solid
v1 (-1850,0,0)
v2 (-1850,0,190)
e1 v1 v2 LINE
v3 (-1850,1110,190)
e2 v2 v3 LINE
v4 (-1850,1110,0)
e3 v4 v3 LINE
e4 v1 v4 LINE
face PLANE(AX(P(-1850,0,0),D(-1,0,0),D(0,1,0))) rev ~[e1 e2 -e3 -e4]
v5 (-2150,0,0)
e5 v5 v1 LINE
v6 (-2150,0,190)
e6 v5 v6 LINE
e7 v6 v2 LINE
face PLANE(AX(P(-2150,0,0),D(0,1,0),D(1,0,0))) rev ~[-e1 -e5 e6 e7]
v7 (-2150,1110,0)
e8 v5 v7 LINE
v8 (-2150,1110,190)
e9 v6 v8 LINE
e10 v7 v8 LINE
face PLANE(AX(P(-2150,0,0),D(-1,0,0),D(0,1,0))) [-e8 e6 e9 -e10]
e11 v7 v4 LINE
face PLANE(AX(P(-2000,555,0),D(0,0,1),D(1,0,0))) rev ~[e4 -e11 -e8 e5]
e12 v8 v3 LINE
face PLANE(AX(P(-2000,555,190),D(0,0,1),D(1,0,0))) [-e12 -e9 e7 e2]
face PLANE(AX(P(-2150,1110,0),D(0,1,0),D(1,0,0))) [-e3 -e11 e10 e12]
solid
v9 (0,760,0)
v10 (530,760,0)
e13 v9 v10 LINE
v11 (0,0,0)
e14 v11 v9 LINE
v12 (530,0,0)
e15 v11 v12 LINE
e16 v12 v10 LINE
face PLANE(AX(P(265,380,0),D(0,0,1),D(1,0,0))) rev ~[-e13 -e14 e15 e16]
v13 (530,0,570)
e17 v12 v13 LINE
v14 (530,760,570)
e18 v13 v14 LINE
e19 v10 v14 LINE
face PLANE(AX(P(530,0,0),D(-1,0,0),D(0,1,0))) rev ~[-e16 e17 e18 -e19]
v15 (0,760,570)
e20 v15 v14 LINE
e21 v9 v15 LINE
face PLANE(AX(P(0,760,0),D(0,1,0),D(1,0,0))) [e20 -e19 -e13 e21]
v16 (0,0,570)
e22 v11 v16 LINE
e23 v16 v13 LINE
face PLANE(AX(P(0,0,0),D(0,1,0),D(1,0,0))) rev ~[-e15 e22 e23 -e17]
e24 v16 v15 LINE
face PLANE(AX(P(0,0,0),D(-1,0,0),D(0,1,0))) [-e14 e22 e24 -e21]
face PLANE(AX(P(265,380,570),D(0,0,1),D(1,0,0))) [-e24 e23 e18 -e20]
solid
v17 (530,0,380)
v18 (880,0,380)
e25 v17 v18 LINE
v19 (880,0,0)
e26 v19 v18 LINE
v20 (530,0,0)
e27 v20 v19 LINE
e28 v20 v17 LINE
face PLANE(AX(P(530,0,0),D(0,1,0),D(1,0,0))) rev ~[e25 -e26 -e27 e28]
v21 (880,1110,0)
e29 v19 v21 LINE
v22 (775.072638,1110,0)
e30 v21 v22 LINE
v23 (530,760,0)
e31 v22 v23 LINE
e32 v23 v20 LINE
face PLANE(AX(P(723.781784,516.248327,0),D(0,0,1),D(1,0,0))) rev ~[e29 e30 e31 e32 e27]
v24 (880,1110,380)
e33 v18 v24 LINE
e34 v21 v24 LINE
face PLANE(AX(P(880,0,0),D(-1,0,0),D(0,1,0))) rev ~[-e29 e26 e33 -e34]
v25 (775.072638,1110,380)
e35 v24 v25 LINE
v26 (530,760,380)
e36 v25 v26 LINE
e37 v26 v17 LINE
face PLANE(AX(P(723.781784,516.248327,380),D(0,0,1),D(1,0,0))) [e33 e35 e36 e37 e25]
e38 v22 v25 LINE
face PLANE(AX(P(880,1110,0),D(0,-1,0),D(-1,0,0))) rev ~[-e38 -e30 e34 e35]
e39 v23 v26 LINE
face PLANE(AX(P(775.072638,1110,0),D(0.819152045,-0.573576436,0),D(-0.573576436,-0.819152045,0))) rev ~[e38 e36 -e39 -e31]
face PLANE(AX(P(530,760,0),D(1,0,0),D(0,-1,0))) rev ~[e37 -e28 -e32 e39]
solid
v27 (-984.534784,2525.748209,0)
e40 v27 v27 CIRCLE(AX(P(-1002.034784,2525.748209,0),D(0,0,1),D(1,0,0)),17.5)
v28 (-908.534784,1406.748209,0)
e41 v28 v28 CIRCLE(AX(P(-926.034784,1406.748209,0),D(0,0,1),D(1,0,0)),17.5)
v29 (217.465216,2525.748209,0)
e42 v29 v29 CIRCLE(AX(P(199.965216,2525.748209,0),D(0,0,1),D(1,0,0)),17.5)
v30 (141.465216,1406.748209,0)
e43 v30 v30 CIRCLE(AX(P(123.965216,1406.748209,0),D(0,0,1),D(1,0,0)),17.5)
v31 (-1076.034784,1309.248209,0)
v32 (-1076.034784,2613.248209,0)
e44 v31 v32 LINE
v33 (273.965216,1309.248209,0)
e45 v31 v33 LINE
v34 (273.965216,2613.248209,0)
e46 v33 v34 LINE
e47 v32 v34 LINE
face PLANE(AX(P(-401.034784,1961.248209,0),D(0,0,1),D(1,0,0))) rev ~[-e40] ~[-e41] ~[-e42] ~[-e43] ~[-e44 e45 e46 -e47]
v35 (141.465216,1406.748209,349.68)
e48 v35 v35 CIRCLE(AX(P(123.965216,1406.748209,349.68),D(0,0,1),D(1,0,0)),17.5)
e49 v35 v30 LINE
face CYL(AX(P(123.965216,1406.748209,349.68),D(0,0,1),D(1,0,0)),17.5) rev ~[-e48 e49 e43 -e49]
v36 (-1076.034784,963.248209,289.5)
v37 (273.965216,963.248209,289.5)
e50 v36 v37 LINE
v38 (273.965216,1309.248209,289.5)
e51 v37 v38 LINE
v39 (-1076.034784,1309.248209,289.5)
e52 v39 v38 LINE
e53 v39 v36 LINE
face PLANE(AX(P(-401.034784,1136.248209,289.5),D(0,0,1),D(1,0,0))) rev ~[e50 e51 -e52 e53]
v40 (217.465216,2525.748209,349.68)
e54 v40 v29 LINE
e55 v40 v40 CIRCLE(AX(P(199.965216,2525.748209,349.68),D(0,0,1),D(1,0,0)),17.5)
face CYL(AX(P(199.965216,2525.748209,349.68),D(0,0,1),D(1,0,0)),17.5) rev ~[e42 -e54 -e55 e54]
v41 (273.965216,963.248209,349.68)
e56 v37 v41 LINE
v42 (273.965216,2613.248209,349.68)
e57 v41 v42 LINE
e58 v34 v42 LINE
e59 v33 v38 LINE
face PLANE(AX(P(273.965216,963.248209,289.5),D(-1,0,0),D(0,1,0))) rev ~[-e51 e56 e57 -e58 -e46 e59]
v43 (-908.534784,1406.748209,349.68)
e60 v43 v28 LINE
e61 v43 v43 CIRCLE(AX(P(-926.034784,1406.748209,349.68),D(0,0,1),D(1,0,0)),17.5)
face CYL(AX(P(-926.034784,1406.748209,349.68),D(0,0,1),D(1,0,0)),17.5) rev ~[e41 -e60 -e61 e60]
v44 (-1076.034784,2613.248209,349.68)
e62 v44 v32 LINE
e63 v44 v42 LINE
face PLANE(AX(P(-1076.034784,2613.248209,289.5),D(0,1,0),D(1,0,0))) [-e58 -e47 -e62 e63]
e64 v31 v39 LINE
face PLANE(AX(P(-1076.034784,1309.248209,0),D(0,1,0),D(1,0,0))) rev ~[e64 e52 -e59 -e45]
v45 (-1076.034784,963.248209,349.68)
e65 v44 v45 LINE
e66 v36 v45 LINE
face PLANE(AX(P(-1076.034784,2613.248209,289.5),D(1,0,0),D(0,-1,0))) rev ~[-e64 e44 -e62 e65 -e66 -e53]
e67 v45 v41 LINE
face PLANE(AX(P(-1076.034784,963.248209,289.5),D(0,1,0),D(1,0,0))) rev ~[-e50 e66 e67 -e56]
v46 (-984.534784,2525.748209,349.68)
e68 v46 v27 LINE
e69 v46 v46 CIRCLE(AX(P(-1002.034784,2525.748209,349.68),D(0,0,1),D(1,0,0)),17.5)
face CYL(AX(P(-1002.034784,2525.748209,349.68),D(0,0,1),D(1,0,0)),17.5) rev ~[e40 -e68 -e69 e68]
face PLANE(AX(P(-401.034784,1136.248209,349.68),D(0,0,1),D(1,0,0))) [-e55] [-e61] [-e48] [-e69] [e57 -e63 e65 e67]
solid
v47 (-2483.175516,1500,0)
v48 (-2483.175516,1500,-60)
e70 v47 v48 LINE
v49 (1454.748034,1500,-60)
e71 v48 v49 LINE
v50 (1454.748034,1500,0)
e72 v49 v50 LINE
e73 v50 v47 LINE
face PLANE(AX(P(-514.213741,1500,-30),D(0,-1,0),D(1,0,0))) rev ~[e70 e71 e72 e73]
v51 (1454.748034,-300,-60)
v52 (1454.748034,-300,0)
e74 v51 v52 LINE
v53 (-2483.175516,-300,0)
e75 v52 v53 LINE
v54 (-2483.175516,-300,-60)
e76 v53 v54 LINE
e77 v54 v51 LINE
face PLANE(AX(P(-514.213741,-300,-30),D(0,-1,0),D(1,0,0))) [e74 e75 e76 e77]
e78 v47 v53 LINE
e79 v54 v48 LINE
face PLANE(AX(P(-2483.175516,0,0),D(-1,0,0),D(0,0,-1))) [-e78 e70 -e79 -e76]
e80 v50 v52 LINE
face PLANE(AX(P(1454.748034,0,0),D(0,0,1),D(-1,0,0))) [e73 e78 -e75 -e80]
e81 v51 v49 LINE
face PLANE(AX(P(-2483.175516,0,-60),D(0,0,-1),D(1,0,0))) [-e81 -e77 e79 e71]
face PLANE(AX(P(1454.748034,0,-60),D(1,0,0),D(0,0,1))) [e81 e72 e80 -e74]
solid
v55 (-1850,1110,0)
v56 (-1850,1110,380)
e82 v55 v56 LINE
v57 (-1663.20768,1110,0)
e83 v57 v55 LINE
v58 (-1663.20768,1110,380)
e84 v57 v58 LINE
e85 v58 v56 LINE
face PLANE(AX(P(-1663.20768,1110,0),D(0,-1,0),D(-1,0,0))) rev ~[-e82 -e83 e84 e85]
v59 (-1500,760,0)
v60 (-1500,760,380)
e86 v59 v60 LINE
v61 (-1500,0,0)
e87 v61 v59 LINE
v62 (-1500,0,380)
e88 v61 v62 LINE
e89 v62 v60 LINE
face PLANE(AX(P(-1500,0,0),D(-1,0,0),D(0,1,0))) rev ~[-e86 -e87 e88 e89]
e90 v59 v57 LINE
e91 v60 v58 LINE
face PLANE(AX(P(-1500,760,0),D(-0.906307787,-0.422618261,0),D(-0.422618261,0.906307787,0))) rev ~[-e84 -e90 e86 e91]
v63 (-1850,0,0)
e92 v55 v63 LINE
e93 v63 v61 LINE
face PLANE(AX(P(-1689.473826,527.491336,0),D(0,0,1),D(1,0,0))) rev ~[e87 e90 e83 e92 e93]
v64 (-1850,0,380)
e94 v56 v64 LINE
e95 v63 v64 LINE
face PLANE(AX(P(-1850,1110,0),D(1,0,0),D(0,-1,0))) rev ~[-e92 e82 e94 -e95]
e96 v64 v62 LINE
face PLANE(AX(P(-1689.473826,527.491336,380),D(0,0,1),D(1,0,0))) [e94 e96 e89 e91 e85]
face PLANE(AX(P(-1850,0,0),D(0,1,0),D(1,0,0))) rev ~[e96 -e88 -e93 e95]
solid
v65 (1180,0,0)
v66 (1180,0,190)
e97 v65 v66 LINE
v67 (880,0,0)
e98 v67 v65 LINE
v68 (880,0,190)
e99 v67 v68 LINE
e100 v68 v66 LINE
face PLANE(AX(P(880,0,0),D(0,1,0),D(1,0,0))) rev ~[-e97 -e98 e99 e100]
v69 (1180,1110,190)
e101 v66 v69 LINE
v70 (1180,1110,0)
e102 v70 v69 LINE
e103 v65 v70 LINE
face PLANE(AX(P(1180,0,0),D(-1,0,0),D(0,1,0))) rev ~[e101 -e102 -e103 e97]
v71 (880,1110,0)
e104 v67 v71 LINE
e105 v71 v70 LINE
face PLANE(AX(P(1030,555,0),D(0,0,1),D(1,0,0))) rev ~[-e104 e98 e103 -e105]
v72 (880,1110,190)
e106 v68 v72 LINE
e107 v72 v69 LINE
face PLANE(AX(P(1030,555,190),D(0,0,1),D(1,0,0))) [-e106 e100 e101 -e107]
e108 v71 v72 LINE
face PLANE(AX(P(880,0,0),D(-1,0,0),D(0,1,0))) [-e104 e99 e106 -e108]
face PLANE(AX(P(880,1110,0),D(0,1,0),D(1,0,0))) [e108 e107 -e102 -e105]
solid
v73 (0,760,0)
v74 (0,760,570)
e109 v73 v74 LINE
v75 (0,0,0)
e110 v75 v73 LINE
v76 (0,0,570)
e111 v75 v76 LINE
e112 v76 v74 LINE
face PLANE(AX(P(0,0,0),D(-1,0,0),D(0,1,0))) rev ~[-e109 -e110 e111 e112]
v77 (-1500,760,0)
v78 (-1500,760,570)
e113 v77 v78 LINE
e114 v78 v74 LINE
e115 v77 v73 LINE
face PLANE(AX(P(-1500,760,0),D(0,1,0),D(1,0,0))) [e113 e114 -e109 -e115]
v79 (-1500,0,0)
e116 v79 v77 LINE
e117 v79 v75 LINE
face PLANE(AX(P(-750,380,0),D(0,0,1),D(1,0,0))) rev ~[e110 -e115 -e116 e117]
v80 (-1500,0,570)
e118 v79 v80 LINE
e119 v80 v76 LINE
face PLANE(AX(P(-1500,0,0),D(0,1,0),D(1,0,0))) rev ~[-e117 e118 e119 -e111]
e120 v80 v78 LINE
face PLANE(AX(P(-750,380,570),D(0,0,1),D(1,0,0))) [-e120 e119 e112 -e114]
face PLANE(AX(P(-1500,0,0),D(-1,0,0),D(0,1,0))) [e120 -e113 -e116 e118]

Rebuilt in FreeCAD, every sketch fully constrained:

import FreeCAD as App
import Part
import Sketcher

V = App.Vector
Q = App.Units.Quantity


def add_polygon(sketch, points):
    """Adds a closed chain of lines whose ends are joined by coincident constraints."""
    first, n = sketch.GeometryCount, len(points)
    for a, b in zip(points, points[1:] + points[:1]):
        sketch.addGeometry(Part.LineSegment(App.Vector(*a, 0), App.Vector(*b, 0)), False)
    for i in range(n):
        sketch.addConstraint(Sketcher.Constraint("Coincident", first + i, 2, first + (i + 1) % n, 1))

doc = App.newDocument("Part")
body = doc.addObject("PartDesign::Body", "Body")
body.AllowCompound = True

sketch1 = doc.addObject("Sketcher::SketchObject", "Sketch")
body.addObject(sketch1)
sketch1.AttachmentSupport = (doc.XY_Plane, [""])
sketch1.MapMode = "FlatFace"
add_polygon(sketch1, [(-2150, 1110), (-2150, 0), (-1850, 0), (-1850, 1110)])
add_polygon(sketch1, [(880, 1110), (880, 0), (1180, 0), (1180, 1110)])
sketch1.addConstraint([
    Sketcher.Constraint("Vertical", 0),
    Sketcher.Constraint("Horizontal", 1),
    Sketcher.Constraint("Vertical", 2),
    Sketcher.Constraint("Horizontal", 3),
    Sketcher.Constraint("Vertical", 4),
    Sketcher.Constraint("Horizontal", 5),
    Sketcher.Constraint("Vertical", 6),
    Sketcher.Constraint("Horizontal", 7),
    Sketcher.Constraint("PointOnObject", 0, 2, -1),
    Sketcher.Constraint("PointOnObject", 4, 2, -1),
    Sketcher.Constraint("Horizontal", 3, 2, 6, 2),
    Sketcher.Constraint("Equal", 3, 5),
    Sketcher.Constraint("DistanceX", 1, 1, 1, 2, 300.0),
    Sketcher.Constraint("DistanceY", 0, 2, 0, 1, 1110.0),
    Sketcher.Constraint("DistanceX", 0, 2, -1, 1, 2150.0),
    Sketcher.Constraint("DistanceX", -1, 1, 4, 2, 880.0),
])
pad1 = doc.addObject("PartDesign::Pad", "Pad")
body.addObject(pad1)
pad1.Profile = sketch1
pad1.Length = 190
body2 = doc.addObject("PartDesign::Body", "Body001")
body2.AllowCompound = True

sketch2 = doc.addObject("Sketcher::SketchObject", "Sketch001")
body2.addObject(sketch2)
sketch2.AttachmentSupport = (doc.getObject("XY_Plane001"), [""])
sketch2.MapMode = "FlatFace"
add_polygon(sketch2, [(-1850, 0), (-1500, 0), (-1500, 760), (-1663, 1110), (-1850, 1110)])
add_polygon(sketch2, [(530, 760), (530, 0), (880, 0), (880, 1110), (775, 1110)])
sketch2.addConstraint([
    Sketcher.Constraint("Horizontal", 0),
    Sketcher.Constraint("Vertical", 1),
    Sketcher.Constraint("Horizontal", 3),
    Sketcher.Constraint("Vertical", 4),
    Sketcher.Constraint("Vertical", 5),
    Sketcher.Constraint("Horizontal", 6),
    Sketcher.Constraint("Vertical", 7),
    Sketcher.Constraint("Horizontal", 8),
    Sketcher.Constraint("PointOnObject", 0, 2, -1),
    Sketcher.Constraint("PointOnObject", 5, 2, -1),
    Sketcher.Constraint("Horizontal", 3, 2, 7, 2),
    Sketcher.Constraint("Horizontal", 1, 2, 9, 2),
    Sketcher.Constraint("Equal", 0, 6),
    Sketcher.Constraint("DistanceX", 0, 1, 0, 2, 350.0),
    Sketcher.Constraint("DistanceY", 1, 1, 1, 2, 760.0),
    Sketcher.Constraint("DistanceY", 4, 2, 4, 1, 1110.0),
    Sketcher.Constraint("Angle", 2, Q("115 deg")),
    Sketcher.Constraint("Angle", 9, Q("-125 deg")),
    Sketcher.Constraint("DistanceX", 0, 2, -1, 1, 1500.0),
    Sketcher.Constraint("DistanceX", -1, 1, 5, 2, 530.0),
])
pad2 = doc.addObject("PartDesign::Pad", "Pad001")
body2.addObject(pad2)
pad2.Profile = sketch2
pad2.Length = 380
body3 = doc.addObject("PartDesign::Body", "Body002")

sketch3 = doc.addObject("Sketcher::SketchObject", "Sketch002")
body3.addObject(sketch3)
sketch3.AttachmentSupport = (doc.getObject("XY_Plane002"), [""])
sketch3.MapMode = "FlatFace"
add_polygon(sketch3, [(-1500, 760), (-1500, 0), (0, 0), (0, 760)])
sketch3.addConstraint([
    Sketcher.Constraint("Vertical", 0),
    Sketcher.Constraint("Horizontal", 1),
    Sketcher.Constraint("Vertical", 2),
    Sketcher.Constraint("Horizontal", 3),
    Sketcher.Constraint("Coincident", 1, 2, -1, 1),
    Sketcher.Constraint("DistanceX", 1, 1, 1, 2, 1500.0),
    Sketcher.Constraint("DistanceY", 0, 2, 0, 1, 760.0),
])
pad3 = doc.addObject("PartDesign::Pad", "Pad002")
body3.addObject(pad3)
pad3.Profile = sketch3
pad3.Length = 570
body4 = doc.addObject("PartDesign::Body", "Body003")

sketch4 = doc.addObject("Sketcher::SketchObject", "Sketch003")
body4.addObject(sketch4)
sketch4.AttachmentSupport = (doc.getObject("XY_Plane003"), [""])
sketch4.MapMode = "FlatFace"
add_polygon(sketch4, [(0, 760), (0, 0), (530, 0), (530, 760)])
sketch4.addConstraint([
    Sketcher.Constraint("Vertical", 0),
    Sketcher.Constraint("Horizontal", 1),
    Sketcher.Constraint("Vertical", 2),
    Sketcher.Constraint("Horizontal", 3),
    Sketcher.Constraint("Coincident", 0, 2, -1, 1),
    Sketcher.Constraint("DistanceX", 1, 1, 1, 2, 530.0),
    Sketcher.Constraint("DistanceY", 0, 2, 0, 1, 760.0),
])
pad4 = doc.addObject("PartDesign::Pad", "Pad003")
body4.addObject(pad4)
pad4.Profile = sketch4
pad4.Length = 570
body5 = doc.addObject("PartDesign::Body", "Body004")

sketch5 = doc.addObject("Sketcher::SketchObject", "Sketch004")
body5.addObject(sketch5)
sketch5.AttachmentSupport = (doc.getObject("XZ_Plane004"), [""])
sketch5.MapMode = "FlatFace"
add_polygon(sketch5, [(1455, -60), (1455, 0), (-2483, 0), (-2483, -60)])
sketch5.addConstraint([
    Sketcher.Constraint("Vertical", 0),
    Sketcher.Constraint("Horizontal", 1),
    Sketcher.Constraint("Vertical", 2),
    Sketcher.Constraint("Horizontal", 3),
    Sketcher.Constraint("PointOnObject", 0, 2, -1),
    Sketcher.Constraint("DistanceY", 0, 1, 0, 2, 60.0),
    Sketcher.Constraint("DistanceX", 1, 2, 1, 1, 3937.92355),
    Sketcher.Constraint("DistanceX", -1, 1, 0, 2, 1454.748034),
])
pad5 = doc.addObject("PartDesign::Pad", "Pad004")
body5.addObject(pad5)
pad5.Profile = sketch5
pad5.Type = "TwoLengths"
pad5.Length = 300
pad5.Length2 = 1500
body6 = doc.addObject("PartDesign::Body", "Body005")

sketch6 = doc.addObject("Sketcher::SketchObject", "Sketch005")
body6.addObject(sketch6)
sketch6.AttachmentSupport = (doc.getObject("XY_Plane005"), [""])
sketch6.MapMode = "FlatFace"
add_polygon(sketch6, [(-1076, 2613), (-1076, 1309), (274, 1309), (274, 2613)])
sketch6.addConstraint([
    Sketcher.Constraint("Vertical", 0),
    Sketcher.Constraint("Horizontal", 1),
    Sketcher.Constraint("Vertical", 2),
    Sketcher.Constraint("Horizontal", 3),
    Sketcher.Constraint("DistanceX", 1, 1, 1, 2, 1350.0),
    Sketcher.Constraint("DistanceY", 0, 2, 0, 1, 1304.0),
    Sketcher.Constraint("DistanceY", -1, 1, 0, 2, 1309.248209),
    Sketcher.Constraint("DistanceX", 0, 2, -1, 1, 1076.034784),
])
pad6 = doc.addObject("PartDesign::Pad", "Pad005")
body6.addObject(pad6)
pad6.Profile = sketch6
pad6.Length = 289.5

sketch7 = doc.addObject("Sketcher::SketchObject", "Sketch006")
body6.addObject(sketch7)
sketch7.AttachmentSupport = (doc.getObject("XY_Plane005"), [""])
sketch7.MapMode = "FlatFace"
sketch7.AttachmentOffset = App.Placement(V(0, 0, 289.5), App.Rotation())
add_polygon(sketch7, [(-1076, 963), (274, 963), (274, 2613), (-1076, 2613)])
sketch7.addConstraint([
    Sketcher.Constraint("Horizontal", 0),
    Sketcher.Constraint("Vertical", 1),
    Sketcher.Constraint("Horizontal", 2),
    Sketcher.Constraint("Vertical", 3),
    Sketcher.Constraint("DistanceX", 0, 1, 0, 2, 1350.0),
    Sketcher.Constraint("DistanceY", 1, 1, 1, 2, 1650.0),
    Sketcher.Constraint("DistanceY", -1, 1, 0, 2, 963.248209),
    Sketcher.Constraint("DistanceX", -1, 1, 0, 2, 273.965216),
])
pad7 = doc.addObject("PartDesign::Pad", "Pad006")
body6.addObject(pad7)
pad7.Profile = sketch7
pad7.Length = 60.18

sketch8 = doc.addObject("Sketcher::SketchObject", "Sketch007")
body6.addObject(sketch8)
sketch8.AttachmentSupport = (doc.getObject("XY_Plane005"), [""])
sketch8.MapMode = "FlatFace"
sketch8.AttachmentOffset = App.Placement(V(0, 0, 349.68), App.Rotation())
sketch8.addGeometry([
    Part.Circle(V(200, 2526, 0), V(0, 0, 1), 18),
    Part.Circle(V(124, 1407, 0), V(0, 0, 1), 18),
    Part.Circle(V(-926, 1407, 0), V(0, 0, 1), 18),
    Part.Circle(V(-1002, 2526, 0), V(0, 0, 1), 18),
], False)
sketch8.addConstraint([
    Sketcher.Constraint("Equal", 0, 1),
    Sketcher.Constraint("Equal", 1, 2),
    Sketcher.Constraint("Equal", 2, 3),
    Sketcher.Constraint("Horizontal", 1, 3, 2, 3),
    Sketcher.Constraint("Horizontal", 0, 3, 3, 3),
    Sketcher.Constraint("Diameter", 0, 35.0),
    Sketcher.Constraint("DistanceX", 1, 3, 0, 3, 76.0),
    Sketcher.Constraint("DistanceY", 1, 3, 0, 3, 1119.0),
    Sketcher.Constraint("DistanceX", 2, 3, 1, 3, 1050.0),
    Sketcher.Constraint("DistanceX", 3, 3, 2, 3, 76.0),
    Sketcher.Constraint("DistanceY", -1, 1, 0, 3, 2525.748209),
    Sketcher.Constraint("DistanceX", -1, 1, 0, 3, 199.965216),
])
pocket1 = doc.addObject("PartDesign::Pocket", "Pocket")
body6.addObject(pocket1)
pocket1.Profile = sketch8
pocket1.Type = "ThroughAll"

doc.recompute()
